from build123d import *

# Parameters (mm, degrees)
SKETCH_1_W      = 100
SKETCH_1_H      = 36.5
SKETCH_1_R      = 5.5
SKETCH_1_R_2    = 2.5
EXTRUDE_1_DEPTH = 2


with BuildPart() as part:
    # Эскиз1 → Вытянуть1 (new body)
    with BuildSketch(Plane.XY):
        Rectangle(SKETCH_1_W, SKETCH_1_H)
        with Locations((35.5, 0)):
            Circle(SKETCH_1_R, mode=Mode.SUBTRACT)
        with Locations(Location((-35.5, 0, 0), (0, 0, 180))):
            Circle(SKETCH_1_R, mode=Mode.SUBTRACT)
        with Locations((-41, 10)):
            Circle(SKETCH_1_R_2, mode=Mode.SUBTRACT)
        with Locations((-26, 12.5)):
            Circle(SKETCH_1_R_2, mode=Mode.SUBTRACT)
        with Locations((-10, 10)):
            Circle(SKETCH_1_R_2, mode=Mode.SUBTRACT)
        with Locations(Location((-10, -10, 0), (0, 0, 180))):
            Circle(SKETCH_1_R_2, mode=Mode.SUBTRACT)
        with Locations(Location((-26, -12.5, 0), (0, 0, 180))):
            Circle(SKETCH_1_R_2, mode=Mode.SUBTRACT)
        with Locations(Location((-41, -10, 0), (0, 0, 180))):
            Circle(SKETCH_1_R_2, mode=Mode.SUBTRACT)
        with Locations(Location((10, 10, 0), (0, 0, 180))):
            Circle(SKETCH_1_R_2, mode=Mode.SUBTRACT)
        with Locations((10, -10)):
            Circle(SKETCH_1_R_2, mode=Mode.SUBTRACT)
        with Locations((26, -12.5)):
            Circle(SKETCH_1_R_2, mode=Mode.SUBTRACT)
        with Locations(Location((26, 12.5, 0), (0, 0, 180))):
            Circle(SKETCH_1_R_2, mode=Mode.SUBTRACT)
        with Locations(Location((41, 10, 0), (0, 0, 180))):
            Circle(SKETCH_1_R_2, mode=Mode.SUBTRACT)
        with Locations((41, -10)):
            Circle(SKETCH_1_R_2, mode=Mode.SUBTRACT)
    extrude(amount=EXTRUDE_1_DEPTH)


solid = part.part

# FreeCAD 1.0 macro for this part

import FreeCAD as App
import Part
import Sketcher

V = App.Vector

doc = App.newDocument("Part")
body = doc.addObject("PartDesign::Body", "Body")

# Sketch on XY plane
sketch1 = body.newObject("Sketcher::SketchObject", "Sketch")
sketch1.AttachmentSupport = (doc.getObject("XY_Plane"), [""])
sketch1.MapMode = "FlatFace"
sketch1.addGeometry([
    Part.LineSegment(V(-50, 18.2, 0), V(-50, -18.2, 0)),  # 0
    Part.LineSegment(V(-50, -18.2, 0), V(50, -18.2, 0)),  # 1
    Part.LineSegment(V(50, -18.2, 0), V(50, 18.2, 0)),  # 2
    Part.LineSegment(V(50, 18.2, 0), V(-50, 18.2, 0)),  # 3
    Part.Circle(V(-26, -12.5, 0), V(0, 0, 1), 2.5),  # 4
    Part.Circle(V(-41, -10, 0), V(0, 0, 1), 2.5),  # 5
    Part.Circle(V(-10, -10, 0), V(0, 0, 1), 2.5),  # 6
    Part.Circle(V(10, -10, 0), V(0, 0, 1), 2.5),  # 7
    Part.Circle(V(26, -12.5, 0), V(0, 0, 1), 2.5),  # 8
    Part.Circle(V(41, -10, 0), V(0, 0, 1), 2.5),  # 9
    Part.Circle(V(-35.5, 0, 0), V(0, 0, 1), 5.5),  # 10
    Part.Circle(V(-41, 10, 0), V(0, 0, 1), 2.5),  # 11
    Part.Circle(V(-26, 12.5, 0), V(0, 0, 1), 2.5),  # 12
    Part.Circle(V(-10, 10, 0), V(0, 0, 1), 2.5),  # 13
    Part.Circle(V(35.5, 0, 0), V(0, 0, 1), 5.5),  # 14
    Part.Circle(V(10, 10, 0), V(0, 0, 1), 2.5),  # 15
    Part.Circle(V(41, 10, 0), V(0, 0, 1), 2.5),  # 16
    Part.Circle(V(26, 12.5, 0), V(0, 0, 1), 2.5),  # 17
], False)
sketch1.addConstraint([
    Sketcher.Constraint("Coincident", 0, 2, 1, 1),
    Sketcher.Constraint("Coincident", 1, 2, 2, 1),
    Sketcher.Constraint("Coincident", 2, 2, 3, 1),
    Sketcher.Constraint("Coincident", 3, 2, 0, 1),
    Sketcher.Constraint("Vertical", 0),
    Sketcher.Constraint("Horizontal", 1),
    Sketcher.Constraint("Vertical", 2),
    Sketcher.Constraint("Horizontal", 3),
    Sketcher.Constraint("Equal", 4, 5),
    Sketcher.Constraint("Equal", 5, 6),
    Sketcher.Constraint("Equal", 6, 7),
    Sketcher.Constraint("Equal", 7, 8),
    Sketcher.Constraint("Equal", 8, 9),
    Sketcher.Constraint("Equal", 9, 11),
    Sketcher.Constraint("Equal", 11, 12),
    Sketcher.Constraint("Equal", 12, 13),
    Sketcher.Constraint("Equal", 10, 14),
    Sketcher.Constraint("Equal", 13, 15),
    Sketcher.Constraint("Equal", 15, 16),
    Sketcher.Constraint("Equal", 16, 17),
    Sketcher.Constraint("Symmetric", 9, 3, 11, 3, -1, 1),
    Sketcher.Constraint("Symmetric", 8, 3, 12, 3, -1, 1),
    Sketcher.Constraint("Symmetric", 7, 3, 13, 3, -1, 1),
    Sketcher.Constraint("Symmetric", 10, 3, 14, 3, -1, 1),
    Sketcher.Constraint("Symmetric", 6, 3, 15, 3, -1, 1),
    Sketcher.Constraint("Symmetric", 5, 3, 16, 3, -1, 1),
    Sketcher.Constraint("Symmetric", 4, 3, 17, 3, -1, 1),
    Sketcher.Constraint("Symmetric", 0, 2, 2, 2, -1, 1),
    Sketcher.Constraint("Symmetric", 6, 3, 7, 3, -2),
    Sketcher.Constraint("Symmetric", 4, 3, 8, 3, -2),
    Sketcher.Constraint("Symmetric", 5, 3, 9, 3, -2),
    Sketcher.Constraint("PointOnObject", 10, 3, -1),
    Sketcher.Constraint("Horizontal", 5, 3, 6, 3),
    Sketcher.Constraint("Diameter", 4, 5.0),
    Sketcher.Constraint("Diameter", 10, 11.0),
    Sketcher.Constraint("DistanceX", 1, 1, 1, 2, 100.0),
    Sketcher.Constraint("DistanceY", 0, 2, 0, 1, 36.5),
    Sketcher.Constraint("DistanceX", 4, 3, -1, 1, 26.0),
    Sketcher.Constraint("DistanceX", 5, 3, -1, 1, 41.0),
    Sketcher.Constraint("DistanceY", 5, 3, -1, 1, 10.0),
    Sketcher.Constraint("DistanceX", 6, 3, -1, 1, 10.0),
    Sketcher.Constraint("DistanceY", 4, 3, 12, 3, 25.0),
    Sketcher.Constraint("DistanceX", 10, 3, -1, 1, 35.5),
])
pad1 = body.newObject("PartDesign::Pad", "Pad")
pad1.Profile = sketch1
pad1.Length = 2

doc.recompute()
